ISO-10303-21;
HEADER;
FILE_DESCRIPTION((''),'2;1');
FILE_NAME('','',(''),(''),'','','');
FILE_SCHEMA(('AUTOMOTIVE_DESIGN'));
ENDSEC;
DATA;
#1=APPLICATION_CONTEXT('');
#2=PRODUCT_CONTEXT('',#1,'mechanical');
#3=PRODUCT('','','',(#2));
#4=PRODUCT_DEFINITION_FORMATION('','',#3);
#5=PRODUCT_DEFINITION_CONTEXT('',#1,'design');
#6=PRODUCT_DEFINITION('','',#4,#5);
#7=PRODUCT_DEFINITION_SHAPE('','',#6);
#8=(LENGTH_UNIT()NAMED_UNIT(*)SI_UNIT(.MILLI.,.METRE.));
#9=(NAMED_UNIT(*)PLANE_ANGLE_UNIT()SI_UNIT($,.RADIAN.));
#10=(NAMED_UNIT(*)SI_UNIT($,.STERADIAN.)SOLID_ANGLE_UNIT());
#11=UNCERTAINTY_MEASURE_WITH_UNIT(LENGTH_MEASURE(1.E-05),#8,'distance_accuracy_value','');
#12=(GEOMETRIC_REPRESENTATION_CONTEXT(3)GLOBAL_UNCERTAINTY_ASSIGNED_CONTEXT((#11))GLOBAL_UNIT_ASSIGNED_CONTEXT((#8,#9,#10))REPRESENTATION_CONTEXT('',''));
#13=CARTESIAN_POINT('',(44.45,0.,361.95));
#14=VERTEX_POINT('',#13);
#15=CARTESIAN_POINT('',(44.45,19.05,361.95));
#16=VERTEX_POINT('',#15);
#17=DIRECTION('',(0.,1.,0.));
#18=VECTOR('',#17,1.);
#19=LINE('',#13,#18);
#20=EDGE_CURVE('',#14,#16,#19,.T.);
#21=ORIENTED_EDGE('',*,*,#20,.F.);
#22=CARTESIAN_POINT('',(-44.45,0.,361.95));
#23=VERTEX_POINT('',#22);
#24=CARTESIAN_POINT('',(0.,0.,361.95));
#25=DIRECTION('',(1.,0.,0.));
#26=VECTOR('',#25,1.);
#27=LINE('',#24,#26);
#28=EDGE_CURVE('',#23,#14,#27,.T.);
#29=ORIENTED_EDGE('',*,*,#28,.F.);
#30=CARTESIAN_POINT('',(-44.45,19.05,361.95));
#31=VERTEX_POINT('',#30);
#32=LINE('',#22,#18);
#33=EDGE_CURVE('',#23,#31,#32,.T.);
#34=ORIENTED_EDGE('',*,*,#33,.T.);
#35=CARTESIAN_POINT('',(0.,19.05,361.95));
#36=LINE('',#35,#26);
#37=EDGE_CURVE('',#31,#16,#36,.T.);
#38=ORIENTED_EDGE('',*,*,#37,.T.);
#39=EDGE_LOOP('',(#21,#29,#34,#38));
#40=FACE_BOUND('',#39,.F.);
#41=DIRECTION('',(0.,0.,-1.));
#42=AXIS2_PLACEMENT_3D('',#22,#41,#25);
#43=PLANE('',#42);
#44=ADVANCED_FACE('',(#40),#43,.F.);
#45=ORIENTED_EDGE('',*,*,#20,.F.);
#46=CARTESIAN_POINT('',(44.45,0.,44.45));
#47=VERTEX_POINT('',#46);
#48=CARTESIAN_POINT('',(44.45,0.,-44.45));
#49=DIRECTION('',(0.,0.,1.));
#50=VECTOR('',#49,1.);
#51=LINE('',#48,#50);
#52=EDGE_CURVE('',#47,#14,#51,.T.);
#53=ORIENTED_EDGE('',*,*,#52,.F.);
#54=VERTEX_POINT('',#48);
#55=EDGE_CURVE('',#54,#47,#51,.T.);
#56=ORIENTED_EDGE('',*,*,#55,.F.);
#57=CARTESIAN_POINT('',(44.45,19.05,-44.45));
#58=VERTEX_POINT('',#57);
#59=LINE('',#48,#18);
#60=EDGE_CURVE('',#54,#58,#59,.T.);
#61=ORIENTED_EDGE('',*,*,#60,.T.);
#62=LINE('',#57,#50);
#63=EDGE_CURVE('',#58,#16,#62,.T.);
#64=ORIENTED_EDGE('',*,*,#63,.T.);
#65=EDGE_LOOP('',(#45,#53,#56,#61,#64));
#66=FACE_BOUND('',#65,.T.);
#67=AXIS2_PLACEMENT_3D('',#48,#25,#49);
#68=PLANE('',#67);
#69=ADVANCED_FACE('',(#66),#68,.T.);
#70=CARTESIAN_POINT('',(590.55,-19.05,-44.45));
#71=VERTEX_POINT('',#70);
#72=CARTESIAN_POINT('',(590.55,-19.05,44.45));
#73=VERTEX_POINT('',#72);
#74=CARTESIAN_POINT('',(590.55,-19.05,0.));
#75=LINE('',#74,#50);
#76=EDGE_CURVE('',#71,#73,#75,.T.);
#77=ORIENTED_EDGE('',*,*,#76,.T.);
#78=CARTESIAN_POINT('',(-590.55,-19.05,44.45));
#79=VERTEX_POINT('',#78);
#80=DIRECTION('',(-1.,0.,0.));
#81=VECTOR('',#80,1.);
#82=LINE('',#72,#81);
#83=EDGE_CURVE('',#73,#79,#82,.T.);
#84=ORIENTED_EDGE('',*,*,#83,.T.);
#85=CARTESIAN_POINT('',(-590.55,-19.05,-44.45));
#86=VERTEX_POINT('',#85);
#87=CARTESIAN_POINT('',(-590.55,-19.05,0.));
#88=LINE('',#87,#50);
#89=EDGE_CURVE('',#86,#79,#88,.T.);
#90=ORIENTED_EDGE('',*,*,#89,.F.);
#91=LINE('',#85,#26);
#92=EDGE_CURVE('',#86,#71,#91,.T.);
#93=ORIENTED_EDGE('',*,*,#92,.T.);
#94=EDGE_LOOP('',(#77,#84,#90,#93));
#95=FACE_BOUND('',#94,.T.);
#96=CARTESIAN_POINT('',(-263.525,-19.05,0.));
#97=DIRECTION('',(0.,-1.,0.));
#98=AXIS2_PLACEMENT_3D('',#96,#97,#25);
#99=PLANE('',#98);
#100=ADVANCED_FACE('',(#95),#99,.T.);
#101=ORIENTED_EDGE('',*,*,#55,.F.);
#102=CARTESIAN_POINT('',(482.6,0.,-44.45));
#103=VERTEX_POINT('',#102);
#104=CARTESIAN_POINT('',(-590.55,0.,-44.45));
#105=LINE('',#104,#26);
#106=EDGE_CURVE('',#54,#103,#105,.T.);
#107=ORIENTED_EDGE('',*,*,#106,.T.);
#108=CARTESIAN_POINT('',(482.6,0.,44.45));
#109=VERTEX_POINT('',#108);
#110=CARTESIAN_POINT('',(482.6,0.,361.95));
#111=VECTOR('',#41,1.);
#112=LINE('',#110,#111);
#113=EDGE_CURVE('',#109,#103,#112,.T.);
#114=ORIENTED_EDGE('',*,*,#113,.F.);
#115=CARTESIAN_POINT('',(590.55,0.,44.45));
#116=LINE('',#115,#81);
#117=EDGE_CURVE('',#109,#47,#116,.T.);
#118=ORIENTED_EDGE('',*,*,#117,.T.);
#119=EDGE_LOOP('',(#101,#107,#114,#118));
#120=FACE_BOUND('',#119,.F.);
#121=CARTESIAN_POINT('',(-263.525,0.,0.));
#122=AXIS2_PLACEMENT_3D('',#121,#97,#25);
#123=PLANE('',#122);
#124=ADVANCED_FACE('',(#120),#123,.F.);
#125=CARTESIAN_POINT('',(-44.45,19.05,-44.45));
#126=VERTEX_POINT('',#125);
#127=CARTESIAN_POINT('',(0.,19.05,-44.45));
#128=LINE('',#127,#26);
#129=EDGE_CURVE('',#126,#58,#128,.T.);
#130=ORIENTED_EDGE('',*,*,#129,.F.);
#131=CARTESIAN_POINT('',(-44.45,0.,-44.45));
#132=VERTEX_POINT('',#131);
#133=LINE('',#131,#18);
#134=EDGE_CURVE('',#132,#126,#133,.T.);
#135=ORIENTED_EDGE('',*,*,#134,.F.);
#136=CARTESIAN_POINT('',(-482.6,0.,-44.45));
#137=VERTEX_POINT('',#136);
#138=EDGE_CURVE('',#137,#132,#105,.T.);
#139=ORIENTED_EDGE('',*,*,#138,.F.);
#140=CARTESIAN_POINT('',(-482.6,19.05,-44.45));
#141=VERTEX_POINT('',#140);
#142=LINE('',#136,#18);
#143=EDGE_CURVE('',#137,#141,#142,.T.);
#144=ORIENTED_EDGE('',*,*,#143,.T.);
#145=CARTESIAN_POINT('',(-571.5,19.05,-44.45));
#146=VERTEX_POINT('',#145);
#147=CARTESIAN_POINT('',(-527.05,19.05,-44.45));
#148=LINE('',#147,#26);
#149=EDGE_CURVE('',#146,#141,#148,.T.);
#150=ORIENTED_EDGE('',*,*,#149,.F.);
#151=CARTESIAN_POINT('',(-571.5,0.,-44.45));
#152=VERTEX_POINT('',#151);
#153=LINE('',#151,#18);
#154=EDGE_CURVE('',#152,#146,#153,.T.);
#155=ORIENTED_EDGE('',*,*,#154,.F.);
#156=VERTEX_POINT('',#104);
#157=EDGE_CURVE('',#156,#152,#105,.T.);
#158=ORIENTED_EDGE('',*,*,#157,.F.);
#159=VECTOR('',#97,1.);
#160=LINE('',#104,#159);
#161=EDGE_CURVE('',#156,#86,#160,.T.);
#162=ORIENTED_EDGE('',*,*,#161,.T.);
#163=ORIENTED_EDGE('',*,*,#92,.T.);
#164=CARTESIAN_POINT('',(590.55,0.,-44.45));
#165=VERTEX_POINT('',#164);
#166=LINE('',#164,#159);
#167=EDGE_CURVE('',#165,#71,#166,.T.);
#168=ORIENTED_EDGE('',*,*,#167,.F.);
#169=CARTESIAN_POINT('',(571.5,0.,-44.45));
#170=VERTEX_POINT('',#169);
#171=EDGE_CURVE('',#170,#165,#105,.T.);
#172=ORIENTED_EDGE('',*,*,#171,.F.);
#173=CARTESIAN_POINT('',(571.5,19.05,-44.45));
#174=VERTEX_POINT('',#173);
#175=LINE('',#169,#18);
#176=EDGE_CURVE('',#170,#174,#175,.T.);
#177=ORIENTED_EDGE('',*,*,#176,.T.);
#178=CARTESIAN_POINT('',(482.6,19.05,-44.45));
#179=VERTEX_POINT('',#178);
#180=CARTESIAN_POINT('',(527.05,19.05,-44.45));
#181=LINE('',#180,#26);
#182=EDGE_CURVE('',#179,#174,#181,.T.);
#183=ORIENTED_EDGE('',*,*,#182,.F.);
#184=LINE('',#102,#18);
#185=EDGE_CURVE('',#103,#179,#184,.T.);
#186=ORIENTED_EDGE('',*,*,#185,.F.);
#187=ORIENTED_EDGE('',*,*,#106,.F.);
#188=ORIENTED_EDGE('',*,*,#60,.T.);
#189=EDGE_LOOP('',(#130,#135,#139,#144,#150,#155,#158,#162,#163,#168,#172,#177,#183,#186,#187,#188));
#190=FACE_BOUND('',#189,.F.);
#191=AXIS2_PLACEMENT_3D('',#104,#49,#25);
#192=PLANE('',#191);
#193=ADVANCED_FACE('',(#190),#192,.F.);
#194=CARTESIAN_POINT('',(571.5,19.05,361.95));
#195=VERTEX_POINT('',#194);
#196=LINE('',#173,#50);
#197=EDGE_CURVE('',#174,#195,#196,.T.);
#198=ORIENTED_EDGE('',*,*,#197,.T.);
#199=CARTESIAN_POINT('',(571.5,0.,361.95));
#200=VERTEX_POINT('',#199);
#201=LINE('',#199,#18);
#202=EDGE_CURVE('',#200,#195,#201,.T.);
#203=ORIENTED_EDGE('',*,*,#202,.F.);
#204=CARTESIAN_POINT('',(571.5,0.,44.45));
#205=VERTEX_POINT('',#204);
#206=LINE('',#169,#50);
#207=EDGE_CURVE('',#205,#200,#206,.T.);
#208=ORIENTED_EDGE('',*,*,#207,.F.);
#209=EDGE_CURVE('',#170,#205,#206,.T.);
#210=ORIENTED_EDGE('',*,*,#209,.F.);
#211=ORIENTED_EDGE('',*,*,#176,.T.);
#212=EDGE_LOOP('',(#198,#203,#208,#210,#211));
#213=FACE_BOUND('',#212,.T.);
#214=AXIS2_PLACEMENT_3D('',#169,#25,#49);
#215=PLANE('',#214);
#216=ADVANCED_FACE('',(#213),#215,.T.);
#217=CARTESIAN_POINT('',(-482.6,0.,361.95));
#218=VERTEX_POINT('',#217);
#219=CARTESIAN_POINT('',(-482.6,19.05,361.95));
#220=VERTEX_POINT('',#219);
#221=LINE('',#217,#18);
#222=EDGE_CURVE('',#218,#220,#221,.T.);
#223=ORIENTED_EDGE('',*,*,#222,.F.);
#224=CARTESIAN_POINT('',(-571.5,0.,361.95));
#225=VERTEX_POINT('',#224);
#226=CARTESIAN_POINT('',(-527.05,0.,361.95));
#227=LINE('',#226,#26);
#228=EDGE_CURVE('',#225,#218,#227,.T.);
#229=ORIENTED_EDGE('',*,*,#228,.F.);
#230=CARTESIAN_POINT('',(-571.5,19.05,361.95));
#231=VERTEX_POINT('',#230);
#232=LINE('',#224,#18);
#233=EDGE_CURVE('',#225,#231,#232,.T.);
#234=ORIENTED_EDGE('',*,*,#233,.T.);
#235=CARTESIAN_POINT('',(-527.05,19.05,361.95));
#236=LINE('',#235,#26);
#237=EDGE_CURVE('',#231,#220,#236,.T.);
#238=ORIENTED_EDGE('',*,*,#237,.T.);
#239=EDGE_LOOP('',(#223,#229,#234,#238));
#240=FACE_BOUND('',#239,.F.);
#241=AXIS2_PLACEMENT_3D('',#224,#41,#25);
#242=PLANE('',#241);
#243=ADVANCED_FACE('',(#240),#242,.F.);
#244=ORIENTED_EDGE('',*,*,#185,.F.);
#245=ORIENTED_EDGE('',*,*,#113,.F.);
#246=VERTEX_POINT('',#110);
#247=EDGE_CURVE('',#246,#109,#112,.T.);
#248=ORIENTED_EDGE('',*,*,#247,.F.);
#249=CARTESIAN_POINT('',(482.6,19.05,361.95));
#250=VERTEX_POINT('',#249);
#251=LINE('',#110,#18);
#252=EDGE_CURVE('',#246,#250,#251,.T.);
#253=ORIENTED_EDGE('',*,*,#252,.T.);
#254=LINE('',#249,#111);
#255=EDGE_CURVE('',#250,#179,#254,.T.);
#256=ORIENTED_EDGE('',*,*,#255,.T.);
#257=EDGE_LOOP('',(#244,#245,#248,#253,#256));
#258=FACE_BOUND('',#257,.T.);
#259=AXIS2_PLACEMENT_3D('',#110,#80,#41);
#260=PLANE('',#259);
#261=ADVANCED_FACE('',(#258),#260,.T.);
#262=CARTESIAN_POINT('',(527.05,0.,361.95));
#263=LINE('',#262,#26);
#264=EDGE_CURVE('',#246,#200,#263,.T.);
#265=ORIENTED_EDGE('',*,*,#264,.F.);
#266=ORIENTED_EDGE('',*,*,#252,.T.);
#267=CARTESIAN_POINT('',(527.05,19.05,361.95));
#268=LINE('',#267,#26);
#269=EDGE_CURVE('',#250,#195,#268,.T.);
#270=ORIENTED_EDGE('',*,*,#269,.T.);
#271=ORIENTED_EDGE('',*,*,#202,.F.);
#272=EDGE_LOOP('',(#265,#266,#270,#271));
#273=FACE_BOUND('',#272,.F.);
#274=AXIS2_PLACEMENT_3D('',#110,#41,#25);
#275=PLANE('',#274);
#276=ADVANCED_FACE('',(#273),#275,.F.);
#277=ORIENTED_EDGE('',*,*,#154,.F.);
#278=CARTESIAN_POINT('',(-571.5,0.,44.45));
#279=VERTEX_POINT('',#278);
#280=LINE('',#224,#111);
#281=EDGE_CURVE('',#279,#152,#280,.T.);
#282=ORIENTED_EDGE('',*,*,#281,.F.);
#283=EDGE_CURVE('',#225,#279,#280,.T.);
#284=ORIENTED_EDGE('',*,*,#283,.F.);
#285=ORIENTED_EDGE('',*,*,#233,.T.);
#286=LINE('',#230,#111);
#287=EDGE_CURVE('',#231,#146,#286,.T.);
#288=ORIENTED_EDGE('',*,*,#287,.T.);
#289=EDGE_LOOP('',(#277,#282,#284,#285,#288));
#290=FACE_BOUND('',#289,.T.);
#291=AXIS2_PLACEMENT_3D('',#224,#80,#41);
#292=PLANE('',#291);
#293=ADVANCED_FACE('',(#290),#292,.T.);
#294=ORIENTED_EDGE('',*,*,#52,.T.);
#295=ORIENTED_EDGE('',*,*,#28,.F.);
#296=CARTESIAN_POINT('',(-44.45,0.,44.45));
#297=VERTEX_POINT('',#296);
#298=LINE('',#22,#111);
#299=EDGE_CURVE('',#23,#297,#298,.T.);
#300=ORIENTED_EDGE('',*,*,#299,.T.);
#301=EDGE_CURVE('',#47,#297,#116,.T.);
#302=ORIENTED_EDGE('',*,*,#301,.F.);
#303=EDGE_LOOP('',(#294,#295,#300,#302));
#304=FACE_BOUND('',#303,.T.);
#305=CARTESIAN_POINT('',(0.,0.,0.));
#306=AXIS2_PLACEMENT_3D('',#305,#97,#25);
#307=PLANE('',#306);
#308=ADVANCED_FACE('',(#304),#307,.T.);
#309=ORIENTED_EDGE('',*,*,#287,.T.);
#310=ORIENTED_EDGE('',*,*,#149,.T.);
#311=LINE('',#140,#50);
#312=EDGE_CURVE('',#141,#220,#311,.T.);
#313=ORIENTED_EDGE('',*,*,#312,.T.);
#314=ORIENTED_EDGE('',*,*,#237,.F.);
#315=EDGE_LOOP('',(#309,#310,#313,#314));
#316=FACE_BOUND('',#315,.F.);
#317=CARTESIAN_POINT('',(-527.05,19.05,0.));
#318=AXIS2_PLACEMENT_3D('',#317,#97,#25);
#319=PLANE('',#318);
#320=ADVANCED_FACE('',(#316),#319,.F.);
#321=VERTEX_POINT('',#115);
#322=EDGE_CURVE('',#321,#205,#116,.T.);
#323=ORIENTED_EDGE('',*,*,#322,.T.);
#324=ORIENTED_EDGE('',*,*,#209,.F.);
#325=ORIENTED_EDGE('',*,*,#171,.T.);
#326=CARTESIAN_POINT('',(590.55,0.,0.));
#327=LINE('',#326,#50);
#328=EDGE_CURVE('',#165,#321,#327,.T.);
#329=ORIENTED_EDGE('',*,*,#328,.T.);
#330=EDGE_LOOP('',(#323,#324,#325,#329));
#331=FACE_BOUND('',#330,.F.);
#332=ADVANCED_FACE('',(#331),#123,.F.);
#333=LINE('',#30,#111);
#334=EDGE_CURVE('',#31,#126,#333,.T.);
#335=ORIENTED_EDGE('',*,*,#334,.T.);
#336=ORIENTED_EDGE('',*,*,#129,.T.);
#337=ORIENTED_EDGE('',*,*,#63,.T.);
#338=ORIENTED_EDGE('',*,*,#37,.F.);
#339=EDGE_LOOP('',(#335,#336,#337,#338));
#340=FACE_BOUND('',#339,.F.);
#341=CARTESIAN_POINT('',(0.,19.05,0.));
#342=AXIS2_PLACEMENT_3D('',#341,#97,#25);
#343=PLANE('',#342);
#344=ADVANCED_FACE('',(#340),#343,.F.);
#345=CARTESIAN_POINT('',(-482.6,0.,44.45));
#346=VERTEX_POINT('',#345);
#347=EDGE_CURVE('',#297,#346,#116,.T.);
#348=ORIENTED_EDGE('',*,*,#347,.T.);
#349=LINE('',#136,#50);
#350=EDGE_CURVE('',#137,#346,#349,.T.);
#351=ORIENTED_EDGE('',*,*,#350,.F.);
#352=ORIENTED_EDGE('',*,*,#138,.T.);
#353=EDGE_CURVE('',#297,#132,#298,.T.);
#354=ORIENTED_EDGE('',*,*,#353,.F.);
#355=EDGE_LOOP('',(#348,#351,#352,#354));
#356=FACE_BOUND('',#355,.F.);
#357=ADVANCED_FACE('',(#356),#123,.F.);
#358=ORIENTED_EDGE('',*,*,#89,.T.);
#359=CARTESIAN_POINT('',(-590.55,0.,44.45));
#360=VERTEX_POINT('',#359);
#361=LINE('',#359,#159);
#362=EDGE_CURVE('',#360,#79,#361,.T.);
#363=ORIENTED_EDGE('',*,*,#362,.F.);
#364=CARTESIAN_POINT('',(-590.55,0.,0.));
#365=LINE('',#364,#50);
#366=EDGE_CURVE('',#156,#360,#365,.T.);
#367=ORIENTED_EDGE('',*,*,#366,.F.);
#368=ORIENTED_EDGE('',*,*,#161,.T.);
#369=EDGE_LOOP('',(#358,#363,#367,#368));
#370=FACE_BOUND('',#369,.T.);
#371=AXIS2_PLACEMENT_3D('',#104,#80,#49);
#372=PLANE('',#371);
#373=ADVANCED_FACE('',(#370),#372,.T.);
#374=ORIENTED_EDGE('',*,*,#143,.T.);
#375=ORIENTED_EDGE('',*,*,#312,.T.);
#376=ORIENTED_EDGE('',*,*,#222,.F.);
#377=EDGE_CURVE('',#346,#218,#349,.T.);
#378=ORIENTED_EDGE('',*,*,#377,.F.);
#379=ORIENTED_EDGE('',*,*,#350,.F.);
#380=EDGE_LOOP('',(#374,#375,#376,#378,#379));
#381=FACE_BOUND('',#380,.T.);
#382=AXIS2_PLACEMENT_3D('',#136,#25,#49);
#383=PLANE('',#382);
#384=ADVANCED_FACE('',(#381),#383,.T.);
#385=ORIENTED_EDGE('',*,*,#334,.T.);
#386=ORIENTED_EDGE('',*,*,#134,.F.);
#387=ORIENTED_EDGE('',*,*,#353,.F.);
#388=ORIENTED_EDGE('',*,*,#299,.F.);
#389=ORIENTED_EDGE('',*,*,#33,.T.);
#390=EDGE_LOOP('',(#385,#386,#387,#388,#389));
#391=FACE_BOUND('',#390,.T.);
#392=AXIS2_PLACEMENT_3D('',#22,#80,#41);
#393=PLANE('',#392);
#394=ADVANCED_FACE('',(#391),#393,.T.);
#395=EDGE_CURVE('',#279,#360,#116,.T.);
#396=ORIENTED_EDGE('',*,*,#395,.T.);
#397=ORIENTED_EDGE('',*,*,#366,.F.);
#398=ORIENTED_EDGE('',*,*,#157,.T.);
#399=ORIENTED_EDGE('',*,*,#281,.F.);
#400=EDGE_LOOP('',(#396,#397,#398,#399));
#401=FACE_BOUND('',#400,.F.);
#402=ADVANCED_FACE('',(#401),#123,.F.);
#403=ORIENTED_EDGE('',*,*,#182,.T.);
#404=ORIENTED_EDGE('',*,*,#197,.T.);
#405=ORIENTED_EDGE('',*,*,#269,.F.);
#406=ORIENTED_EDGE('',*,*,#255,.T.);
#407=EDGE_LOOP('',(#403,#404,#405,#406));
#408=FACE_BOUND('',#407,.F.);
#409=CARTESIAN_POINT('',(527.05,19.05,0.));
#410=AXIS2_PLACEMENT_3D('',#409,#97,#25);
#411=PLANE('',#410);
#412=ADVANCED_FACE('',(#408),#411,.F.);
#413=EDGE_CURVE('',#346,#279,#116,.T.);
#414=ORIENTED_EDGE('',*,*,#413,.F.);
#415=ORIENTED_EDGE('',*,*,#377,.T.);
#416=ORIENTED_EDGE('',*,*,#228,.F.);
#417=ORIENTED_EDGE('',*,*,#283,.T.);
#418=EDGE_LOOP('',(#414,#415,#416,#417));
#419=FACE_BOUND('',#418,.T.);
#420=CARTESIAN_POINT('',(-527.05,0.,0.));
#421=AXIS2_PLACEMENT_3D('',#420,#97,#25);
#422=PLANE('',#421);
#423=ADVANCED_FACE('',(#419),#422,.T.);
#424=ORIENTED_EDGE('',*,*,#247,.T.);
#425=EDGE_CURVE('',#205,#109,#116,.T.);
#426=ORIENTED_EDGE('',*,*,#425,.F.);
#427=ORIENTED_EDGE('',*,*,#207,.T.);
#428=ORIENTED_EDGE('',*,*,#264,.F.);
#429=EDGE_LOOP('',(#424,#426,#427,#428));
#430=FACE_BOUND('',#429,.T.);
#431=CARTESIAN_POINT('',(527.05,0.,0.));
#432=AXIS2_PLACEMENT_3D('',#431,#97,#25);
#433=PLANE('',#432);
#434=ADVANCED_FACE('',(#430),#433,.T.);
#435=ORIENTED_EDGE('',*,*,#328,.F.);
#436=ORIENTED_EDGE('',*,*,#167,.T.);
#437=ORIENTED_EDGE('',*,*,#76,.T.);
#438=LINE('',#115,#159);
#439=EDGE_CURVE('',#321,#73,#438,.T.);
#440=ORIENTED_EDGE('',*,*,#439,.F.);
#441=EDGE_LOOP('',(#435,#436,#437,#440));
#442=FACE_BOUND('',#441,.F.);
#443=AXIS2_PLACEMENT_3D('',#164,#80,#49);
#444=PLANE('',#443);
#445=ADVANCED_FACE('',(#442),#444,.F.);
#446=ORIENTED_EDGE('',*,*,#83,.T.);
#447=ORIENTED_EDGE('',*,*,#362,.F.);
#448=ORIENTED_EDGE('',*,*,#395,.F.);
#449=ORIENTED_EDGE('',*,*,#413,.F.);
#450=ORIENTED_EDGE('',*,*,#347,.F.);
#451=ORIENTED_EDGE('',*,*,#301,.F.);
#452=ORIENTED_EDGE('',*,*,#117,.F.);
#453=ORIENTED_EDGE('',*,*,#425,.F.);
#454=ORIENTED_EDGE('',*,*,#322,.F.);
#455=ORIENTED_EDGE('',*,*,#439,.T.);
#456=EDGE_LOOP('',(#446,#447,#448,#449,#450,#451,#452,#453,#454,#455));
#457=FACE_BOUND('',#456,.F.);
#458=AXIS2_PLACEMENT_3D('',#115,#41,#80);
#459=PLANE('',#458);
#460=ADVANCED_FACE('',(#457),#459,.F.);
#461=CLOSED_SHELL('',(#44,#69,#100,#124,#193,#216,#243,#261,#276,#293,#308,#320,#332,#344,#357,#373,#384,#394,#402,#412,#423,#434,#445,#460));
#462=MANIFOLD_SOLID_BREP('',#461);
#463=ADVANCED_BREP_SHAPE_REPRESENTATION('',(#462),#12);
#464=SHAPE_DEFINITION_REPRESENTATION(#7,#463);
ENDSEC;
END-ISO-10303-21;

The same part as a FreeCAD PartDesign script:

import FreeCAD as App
import Part
import Sketcher
from FreeCAD import Vector
Q = App.Units.Quantity


def add_polygon(sketch, points):
    """Adds a closed chain of lines whose ends are joined by coincident constraints."""
    first, n = sketch.GeometryCount, len(points)
    for a, b in zip(points, points[1:] + points[:1]):
        sketch.addGeometry(Part.LineSegment(App.Vector(*a, 0), App.Vector(*b, 0)), False)
    for i in range(n):
        sketch.addConstraint(Sketcher.Constraint("Coincident", first + i, 2, first + (i + 1) % n, 1))

doc = App.newDocument("Part")
body = doc.addObject("PartDesign::Body", "Body")

sketch1 = doc.addObject("Sketcher::SketchObject", "Sketch")
body.addObject(sketch1)
sketch1.AttachmentSupport = (doc.XZ_Plane, [""])
sketch1.MapMode = "FlatFace"
add_polygon(sketch1, [(-572, -44), (-483, -44), (-483, 362), (-572, 362)])
sketch1.addConstraint([
    Sketcher.Constraint("Horizontal", 0),
    Sketcher.Constraint("Vertical", 1),
    Sketcher.Constraint("Horizontal", 2),
    Sketcher.Constraint("Vertical", 3),
    Sketcher.Constraint("DistanceY", 1, 1, 1, 2, Q("16 in")),
    Sketcher.Constraint("DistanceX", 0, 1, 0, 2, Q("3.5 in")),
    Sketcher.Constraint("DistanceX", 0, 2, -1, 1, Q("19 in")),
    Sketcher.Constraint("DistanceY", 0, 2, -1, 1, Q("1.75 in")),
])
pad1 = doc.addObject("PartDesign::Pad", "Pad")
body.addObject(pad1)
pad1.Profile = sketch1
pad1.Length = Q("0.75 in")
pad1.Reversed = True
body2 = doc.addObject("PartDesign::Body", "Body001")

sketch2 = doc.addObject("Sketcher::SketchObject", "Sketch001")
body2.addObject(sketch2)
sketch2.AttachmentSupport = (doc.getObject("XZ_Plane001"), [""])
sketch2.MapMode = "FlatFace"
add_polygon(sketch2, [(-44, -44), (44, -44), (44, 362), (-44, 362)])
sketch2.addConstraint([
    Sketcher.Constraint("Horizontal", 0),
    Sketcher.Constraint("Vertical", 1),
    Sketcher.Constraint("Horizontal", 2),
    Sketcher.Constraint("Vertical", 3),
    Sketcher.Constraint("DistanceY", 1, 1, 1, 2, Q("16 in")),
    Sketcher.Constraint("DistanceX", 0, 1, 0, 2, Q("3.5 in")),
    Sketcher.Constraint("DistanceX", -1, 1, 0, 2, Q("1.75 in")),
    Sketcher.Constraint("DistanceY", 0, 2, -1, 1, Q("1.75 in")),
])
pad2 = doc.addObject("PartDesign::Pad", "Pad001")
body2.addObject(pad2)
pad2.Profile = sketch2
pad2.Length = Q("0.75 in")
pad2.Reversed = True
body3 = doc.addObject("PartDesign::Body", "Body002")

sketch3 = doc.addObject("Sketcher::SketchObject", "Sketch002")
body3.addObject(sketch3)
sketch3.AttachmentSupport = (doc.getObject("XZ_Plane002"), [""])
sketch3.MapMode = "FlatFace"
add_polygon(sketch3, [(483, -44), (572, -44), (572, 362), (483, 362)])
sketch3.addConstraint([
    Sketcher.Constraint("Horizontal", 0),
    Sketcher.Constraint("Vertical", 1),
    Sketcher.Constraint("Horizontal", 2),
    Sketcher.Constraint("Vertical", 3),
    Sketcher.Constraint("DistanceY", 1, 1, 1, 2, Q("16 in")),
    Sketcher.Constraint("DistanceX", 0, 1, 0, 2, Q("3.5 in")),
    Sketcher.Constraint("DistanceX", -1, 1, 2, 2, Q("19 in")),
    Sketcher.Constraint("DistanceY", 0, 2, -1, 1, Q("1.75 in")),
])
pad3 = doc.addObject("PartDesign::Pad", "Pad002")
body3.addObject(pad3)
pad3.Profile = sketch3
pad3.Length = Q("0.75 in")
pad3.Reversed = True
body.AllowCompound = True
doc.recompute()

boolean = doc.addObject("PartDesign::Boolean", "Boolean")
body.addObject(boolean)
boolean.Type = "Fuse"
boolean.addObjects([body2])
doc.recompute()

boolean2 = doc.addObject("PartDesign::Boolean", "Boolean001")
body.addObject(boolean2)
boolean2.Type = "Fuse"
boolean2.addObjects([body3])

sketch4 = doc.addObject("Sketcher::SketchObject", "Sketch003")
body.addObject(sketch4)
sketch4.AttachmentSupport = (doc.XZ_Plane, [""])
sketch4.MapMode = "FlatFace"
add_polygon(sketch4, [(-591, 44), (-591, -44), (591, -44), (591, 44)])
sketch4.addConstraint([
    Sketcher.Constraint("Vertical", 0),
    Sketcher.Constraint("Horizontal", 1),
    Sketcher.Constraint("Vertical", 2),
    Sketcher.Constraint("Horizontal", 3),
    Sketcher.Constraint("Symmetric", 0, 2, 2, 2, -1, 1),
    Sketcher.Constraint("DistanceX", 1, 1, 1, 2, Q("46.5 in")),
    Sketcher.Constraint("DistanceY", 0, 2, 0, 1, Q("3.5 in")),
])
pad4 = doc.addObject("PartDesign::Pad", "Pad003")
body.addObject(pad4)
pad4.Profile = sketch4
pad4.Length = Q("0.75 in")

doc.recompute()
